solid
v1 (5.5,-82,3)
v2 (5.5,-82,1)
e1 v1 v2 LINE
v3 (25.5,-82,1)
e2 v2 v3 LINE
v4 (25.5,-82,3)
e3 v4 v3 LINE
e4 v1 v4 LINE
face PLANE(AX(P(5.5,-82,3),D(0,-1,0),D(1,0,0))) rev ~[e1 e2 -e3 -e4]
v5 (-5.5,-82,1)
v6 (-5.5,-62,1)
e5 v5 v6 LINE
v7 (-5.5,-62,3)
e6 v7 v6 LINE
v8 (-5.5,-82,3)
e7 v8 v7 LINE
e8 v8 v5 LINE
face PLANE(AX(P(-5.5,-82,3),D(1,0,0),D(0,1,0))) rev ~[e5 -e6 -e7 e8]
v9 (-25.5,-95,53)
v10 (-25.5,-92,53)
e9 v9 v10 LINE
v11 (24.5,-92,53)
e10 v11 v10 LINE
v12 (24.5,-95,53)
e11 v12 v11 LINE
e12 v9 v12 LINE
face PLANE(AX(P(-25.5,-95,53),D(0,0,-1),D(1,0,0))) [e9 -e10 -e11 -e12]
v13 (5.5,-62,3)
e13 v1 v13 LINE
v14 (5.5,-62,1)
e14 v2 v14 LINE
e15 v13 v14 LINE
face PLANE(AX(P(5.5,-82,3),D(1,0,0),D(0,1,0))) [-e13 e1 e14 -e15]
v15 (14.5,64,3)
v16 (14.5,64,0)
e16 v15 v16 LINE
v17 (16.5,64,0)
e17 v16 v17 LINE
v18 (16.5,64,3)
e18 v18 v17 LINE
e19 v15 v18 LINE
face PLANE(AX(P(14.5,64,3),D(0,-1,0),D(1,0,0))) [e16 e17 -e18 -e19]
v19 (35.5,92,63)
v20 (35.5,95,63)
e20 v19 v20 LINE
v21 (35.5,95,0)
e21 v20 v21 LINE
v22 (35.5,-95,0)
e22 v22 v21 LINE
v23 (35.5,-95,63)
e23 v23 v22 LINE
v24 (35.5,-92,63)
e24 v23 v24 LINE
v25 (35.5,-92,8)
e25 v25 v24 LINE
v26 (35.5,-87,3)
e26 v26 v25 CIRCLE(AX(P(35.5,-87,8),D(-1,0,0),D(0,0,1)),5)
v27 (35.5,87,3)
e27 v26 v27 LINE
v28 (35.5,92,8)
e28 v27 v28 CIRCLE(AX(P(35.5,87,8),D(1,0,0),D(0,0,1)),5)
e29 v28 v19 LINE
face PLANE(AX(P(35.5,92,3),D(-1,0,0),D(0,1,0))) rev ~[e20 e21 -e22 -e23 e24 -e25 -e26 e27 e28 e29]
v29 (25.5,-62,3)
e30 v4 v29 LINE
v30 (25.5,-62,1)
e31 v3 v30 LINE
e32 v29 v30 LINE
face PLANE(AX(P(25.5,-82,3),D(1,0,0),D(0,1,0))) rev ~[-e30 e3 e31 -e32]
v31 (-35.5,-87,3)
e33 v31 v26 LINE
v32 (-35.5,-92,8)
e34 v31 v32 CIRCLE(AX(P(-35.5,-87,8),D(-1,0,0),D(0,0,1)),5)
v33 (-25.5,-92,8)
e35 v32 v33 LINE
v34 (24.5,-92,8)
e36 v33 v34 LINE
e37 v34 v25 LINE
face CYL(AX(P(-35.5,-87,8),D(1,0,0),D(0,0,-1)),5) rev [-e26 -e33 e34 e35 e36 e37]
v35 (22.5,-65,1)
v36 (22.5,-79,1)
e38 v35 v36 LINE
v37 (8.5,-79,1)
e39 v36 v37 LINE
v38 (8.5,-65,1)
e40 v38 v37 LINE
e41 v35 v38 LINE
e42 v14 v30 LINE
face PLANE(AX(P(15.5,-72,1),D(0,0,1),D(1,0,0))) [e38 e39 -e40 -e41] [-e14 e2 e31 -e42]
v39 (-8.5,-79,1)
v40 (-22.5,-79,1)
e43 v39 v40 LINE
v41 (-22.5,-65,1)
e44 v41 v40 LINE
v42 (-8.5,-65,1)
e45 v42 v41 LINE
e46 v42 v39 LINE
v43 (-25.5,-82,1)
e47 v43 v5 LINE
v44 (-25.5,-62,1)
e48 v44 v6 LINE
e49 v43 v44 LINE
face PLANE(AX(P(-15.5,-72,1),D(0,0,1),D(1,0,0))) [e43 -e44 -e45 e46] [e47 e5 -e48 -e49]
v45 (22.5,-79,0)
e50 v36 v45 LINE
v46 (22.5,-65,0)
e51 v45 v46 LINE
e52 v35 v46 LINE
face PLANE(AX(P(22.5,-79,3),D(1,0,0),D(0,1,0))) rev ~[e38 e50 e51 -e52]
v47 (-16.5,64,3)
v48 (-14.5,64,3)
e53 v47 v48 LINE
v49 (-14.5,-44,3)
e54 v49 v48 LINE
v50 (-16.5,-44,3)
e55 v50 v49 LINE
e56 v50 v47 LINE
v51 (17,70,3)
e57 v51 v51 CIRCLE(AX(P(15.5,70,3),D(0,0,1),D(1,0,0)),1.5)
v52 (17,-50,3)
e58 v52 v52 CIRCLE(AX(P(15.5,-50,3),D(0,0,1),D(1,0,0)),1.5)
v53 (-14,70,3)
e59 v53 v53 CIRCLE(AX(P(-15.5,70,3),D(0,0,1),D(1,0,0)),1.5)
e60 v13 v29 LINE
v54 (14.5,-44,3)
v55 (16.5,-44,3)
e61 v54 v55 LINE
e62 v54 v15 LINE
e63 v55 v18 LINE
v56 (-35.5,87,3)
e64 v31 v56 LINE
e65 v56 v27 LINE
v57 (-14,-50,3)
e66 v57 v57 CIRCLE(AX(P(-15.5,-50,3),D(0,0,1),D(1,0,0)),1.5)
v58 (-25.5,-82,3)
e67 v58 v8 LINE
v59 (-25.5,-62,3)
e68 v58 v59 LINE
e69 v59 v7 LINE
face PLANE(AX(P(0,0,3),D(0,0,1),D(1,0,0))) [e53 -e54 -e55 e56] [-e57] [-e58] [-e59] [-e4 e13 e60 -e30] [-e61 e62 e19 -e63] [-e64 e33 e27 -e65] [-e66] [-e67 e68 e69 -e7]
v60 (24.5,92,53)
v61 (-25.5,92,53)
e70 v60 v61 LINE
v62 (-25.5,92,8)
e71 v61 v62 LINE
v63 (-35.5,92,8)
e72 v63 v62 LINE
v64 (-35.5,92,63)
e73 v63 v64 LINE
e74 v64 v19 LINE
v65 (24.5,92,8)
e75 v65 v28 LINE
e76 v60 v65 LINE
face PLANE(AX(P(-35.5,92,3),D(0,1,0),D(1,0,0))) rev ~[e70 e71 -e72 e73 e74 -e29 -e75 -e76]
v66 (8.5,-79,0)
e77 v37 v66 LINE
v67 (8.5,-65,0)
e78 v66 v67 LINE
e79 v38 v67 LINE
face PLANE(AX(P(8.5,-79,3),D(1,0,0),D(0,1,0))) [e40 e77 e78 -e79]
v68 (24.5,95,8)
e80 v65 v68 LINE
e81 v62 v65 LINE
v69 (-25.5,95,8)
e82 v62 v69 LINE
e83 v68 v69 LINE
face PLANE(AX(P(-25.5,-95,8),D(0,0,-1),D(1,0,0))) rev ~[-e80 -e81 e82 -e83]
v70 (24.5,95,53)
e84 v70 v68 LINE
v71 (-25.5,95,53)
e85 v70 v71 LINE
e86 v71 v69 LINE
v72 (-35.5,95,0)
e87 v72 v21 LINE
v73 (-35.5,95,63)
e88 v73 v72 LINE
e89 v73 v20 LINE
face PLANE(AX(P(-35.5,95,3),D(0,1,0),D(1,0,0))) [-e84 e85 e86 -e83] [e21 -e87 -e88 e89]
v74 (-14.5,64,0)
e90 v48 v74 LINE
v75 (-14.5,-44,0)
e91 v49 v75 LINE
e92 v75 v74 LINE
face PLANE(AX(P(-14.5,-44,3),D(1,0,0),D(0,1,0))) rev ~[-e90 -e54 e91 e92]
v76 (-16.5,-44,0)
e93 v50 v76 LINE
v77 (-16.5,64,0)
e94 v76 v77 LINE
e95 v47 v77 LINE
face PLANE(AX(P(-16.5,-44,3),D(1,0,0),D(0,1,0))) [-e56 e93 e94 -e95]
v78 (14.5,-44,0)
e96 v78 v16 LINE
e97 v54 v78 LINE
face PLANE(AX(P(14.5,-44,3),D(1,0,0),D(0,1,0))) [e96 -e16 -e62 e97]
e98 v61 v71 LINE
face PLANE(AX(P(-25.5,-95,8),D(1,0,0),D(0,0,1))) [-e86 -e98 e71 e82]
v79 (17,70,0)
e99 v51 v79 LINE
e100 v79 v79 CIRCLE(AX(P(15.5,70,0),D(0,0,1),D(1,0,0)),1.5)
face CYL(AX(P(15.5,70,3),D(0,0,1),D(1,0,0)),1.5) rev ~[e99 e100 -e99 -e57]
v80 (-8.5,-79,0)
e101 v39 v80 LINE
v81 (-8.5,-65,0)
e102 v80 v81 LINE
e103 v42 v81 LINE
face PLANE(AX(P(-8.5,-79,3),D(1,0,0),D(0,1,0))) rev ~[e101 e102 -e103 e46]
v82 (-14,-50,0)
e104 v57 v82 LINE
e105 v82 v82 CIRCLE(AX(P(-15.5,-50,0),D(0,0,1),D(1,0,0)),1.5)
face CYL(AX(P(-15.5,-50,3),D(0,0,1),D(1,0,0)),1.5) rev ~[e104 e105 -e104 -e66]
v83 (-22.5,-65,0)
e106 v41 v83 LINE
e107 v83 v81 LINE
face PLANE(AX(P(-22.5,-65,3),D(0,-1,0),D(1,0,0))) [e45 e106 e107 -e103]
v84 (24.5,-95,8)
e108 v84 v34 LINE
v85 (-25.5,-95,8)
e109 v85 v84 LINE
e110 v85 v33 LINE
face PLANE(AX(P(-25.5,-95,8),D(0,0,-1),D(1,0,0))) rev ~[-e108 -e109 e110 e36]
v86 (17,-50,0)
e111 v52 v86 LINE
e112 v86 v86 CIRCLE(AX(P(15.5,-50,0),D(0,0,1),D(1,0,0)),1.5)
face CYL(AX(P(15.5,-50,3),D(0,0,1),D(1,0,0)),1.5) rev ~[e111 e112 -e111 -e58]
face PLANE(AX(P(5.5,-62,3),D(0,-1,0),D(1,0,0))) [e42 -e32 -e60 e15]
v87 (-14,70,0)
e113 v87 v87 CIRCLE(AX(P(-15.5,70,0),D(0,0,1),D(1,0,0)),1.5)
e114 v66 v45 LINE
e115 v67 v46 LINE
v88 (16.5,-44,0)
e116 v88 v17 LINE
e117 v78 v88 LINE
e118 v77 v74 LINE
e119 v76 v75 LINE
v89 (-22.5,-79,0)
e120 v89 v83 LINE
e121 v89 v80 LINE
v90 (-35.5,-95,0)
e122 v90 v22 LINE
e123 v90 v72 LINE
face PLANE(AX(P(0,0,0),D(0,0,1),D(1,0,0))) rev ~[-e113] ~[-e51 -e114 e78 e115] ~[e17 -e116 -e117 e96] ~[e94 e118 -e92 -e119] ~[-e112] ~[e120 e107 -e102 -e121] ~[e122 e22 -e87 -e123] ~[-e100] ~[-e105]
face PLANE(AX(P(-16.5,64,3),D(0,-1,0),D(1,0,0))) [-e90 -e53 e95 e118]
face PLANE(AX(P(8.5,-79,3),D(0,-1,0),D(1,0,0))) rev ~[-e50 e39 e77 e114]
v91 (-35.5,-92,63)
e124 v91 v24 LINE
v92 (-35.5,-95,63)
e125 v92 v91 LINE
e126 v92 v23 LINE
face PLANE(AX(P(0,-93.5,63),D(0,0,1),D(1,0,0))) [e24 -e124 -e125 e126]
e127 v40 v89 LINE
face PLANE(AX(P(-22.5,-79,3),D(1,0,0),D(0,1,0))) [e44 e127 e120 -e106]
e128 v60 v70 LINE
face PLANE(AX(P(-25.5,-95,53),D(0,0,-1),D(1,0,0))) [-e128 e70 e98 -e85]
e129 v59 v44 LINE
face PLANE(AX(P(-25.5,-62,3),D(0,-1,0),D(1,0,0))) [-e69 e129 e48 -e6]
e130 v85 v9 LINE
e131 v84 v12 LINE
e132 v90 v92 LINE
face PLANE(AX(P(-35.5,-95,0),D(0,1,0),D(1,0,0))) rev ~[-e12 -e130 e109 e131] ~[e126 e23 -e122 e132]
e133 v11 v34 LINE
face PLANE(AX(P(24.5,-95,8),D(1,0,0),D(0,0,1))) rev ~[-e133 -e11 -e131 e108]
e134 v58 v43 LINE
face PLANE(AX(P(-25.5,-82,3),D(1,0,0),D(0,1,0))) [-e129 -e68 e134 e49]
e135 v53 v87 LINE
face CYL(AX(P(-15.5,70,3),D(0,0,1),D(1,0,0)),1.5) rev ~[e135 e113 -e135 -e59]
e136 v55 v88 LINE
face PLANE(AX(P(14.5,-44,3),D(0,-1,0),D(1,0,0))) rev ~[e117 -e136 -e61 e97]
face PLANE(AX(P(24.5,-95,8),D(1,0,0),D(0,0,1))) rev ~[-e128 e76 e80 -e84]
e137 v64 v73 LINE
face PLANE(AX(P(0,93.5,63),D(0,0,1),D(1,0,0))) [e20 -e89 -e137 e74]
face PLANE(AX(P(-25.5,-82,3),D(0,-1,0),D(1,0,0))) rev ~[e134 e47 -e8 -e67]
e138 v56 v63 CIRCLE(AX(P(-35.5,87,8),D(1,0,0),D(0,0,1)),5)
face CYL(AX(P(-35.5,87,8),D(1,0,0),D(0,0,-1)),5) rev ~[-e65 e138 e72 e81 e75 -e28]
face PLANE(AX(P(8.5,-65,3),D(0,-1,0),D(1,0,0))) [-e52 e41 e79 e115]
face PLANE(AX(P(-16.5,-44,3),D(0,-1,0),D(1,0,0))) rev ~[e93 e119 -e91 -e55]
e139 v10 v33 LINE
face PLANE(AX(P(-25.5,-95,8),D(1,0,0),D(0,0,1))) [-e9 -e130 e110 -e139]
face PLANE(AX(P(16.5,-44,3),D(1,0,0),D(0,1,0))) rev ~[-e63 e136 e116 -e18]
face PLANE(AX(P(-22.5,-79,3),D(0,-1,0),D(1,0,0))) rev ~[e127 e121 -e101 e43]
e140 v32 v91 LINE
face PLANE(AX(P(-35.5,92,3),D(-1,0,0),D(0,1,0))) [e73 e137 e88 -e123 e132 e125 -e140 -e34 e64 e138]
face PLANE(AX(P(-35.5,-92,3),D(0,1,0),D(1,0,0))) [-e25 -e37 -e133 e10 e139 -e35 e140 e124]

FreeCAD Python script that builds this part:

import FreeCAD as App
import Part
import Sketcher
from FreeCAD import Vector


def edges_at(feature, points):
    """Names of the edges that pass closest to the given points."""
    edges = feature.Shape.Edges
    near = lambda p: min(range(len(edges)), key=lambda i: edges[i].distToShape(Part.Vertex(*p))[0])
    return sorted({f"Edge{near(p) + 1}" for p in points})

doc = App.newDocument("Part")
body = doc.addObject("PartDesign::Body", "Body")

# Sketch on XY plane
sketch1 = body.newObject("Sketcher::SketchObject", "Sketch")
sketch1.AttachmentSupport = (doc.getObject("XY_Plane"), [""])
sketch1.MapMode = "FlatFace"
sketch1.addGeometry([
    Part.LineSegment(Vector(-36, 95, 0), Vector(-36, -95, 0)),
    Part.LineSegment(Vector(-36, -95, 0), Vector(36, -95, 0)),
    Part.LineSegment(Vector(36, -95, 0), Vector(36, 95, 0)),
    Part.LineSegment(Vector(36, 95, 0), Vector(-36, 95, 0)),
], False)
sketch1.addConstraint([
    Sketcher.Constraint("Coincident", 0, 2, 1, 1),
    Sketcher.Constraint("Coincident", 1, 2, 2, 1),
    Sketcher.Constraint("Coincident", 2, 2, 3, 1),
    Sketcher.Constraint("Coincident", 3, 2, 0, 1),
    Sketcher.Constraint("Vertical", 0),
    Sketcher.Constraint("Horizontal", 1),
    Sketcher.Constraint("Vertical", 2),
    Sketcher.Constraint("Horizontal", 3),
    Sketcher.Constraint("Symmetric", 0, 2, 2, 2, -1, 1),
    Sketcher.Constraint("DistanceX", 1, 1, 1, 2, 71.0),
    Sketcher.Constraint("DistanceY", 0, 2, 0, 1, 190.0),
])
pad1 = body.newObject("PartDesign::Pad", "Pad")
pad1.Profile = sketch1
pad1.Length = 3

# Sketch on XY plane
sketch2 = body.newObject("Sketcher::SketchObject", "Sketch001")
sketch2.AttachmentSupport = (doc.getObject("XY_Plane"), [""])
sketch2.MapMode = "FlatFace"
sketch2.AttachmentOffset = App.Placement(Vector(0, 0, 3), App.Rotation())
sketch2.addGeometry([
    Part.Circle(Vector(-15.5, 70, 0), Vector(0, 0, 1), 1.5),  # 0
    Part.Circle(Vector(-15.5, -50, 0), Vector(0, 0, 1), 1.5),  # 1
    Part.Circle(Vector(15.5, 70, 0), Vector(0, 0, 1), 1.5),  # 2
    Part.Circle(Vector(15.5, -50, 0), Vector(0, 0, 1), 1.5),  # 3
    Part.LineSegment(Vector(-22.5, -65, 0), Vector(-22.5, -79, 0)),  # 4
    Part.LineSegment(Vector(-22.5, -79, 0), Vector(-8.5, -79, 0)),  # 5
    Part.LineSegment(Vector(-8.5, -79, 0), Vector(-8.5, -65, 0)),  # 6
    Part.LineSegment(Vector(-8.5, -65, 0), Vector(-22.5, -65, 0)),  # 7
    Part.LineSegment(Vector(-16.5, 64, 0), Vector(-16.5, -44, 0)),  # 8
    Part.LineSegment(Vector(-16.5, -44, 0), Vector(-14.5, -44, 0)),  # 9
    Part.LineSegment(Vector(-14.5, -44, 0), Vector(-14.5, 64, 0)),  # 10
    Part.LineSegment(Vector(-14.5, 64, 0), Vector(-16.5, 64, 0)),  # 11
    Part.LineSegment(Vector(8.5, -65, 0), Vector(8.5, -79, 0)),  # 12
    Part.LineSegment(Vector(8.5, -79, 0), Vector(22.5, -79, 0)),  # 13
    Part.LineSegment(Vector(22.5, -79, 0), Vector(22.5, -65, 0)),  # 14
    Part.LineSegment(Vector(22.5, -65, 0), Vector(8.5, -65, 0)),  # 15
    Part.LineSegment(Vector(14.5, 64, 0), Vector(14.5, -44, 0)),  # 16
    Part.LineSegment(Vector(14.5, -44, 0), Vector(16.5, -44, 0)),  # 17
    Part.LineSegment(Vector(16.5, -44, 0), Vector(16.5, 64, 0)),  # 18
    Part.LineSegment(Vector(16.5, 64, 0), Vector(14.5, 64, 0)),  # 19
], False)
sketch2.addConstraint([
    Sketcher.Constraint("Coincident", 4, 2, 5, 1),
    Sketcher.Constraint("Coincident", 5, 2, 6, 1),
    Sketcher.Constraint("Coincident", 6, 2, 7, 1),
    Sketcher.Constraint("Coincident", 7, 2, 4, 1),
    Sketcher.Constraint("Coincident", 8, 2, 9, 1),
    Sketcher.Constraint("Coincident", 9, 2, 10, 1),
    Sketcher.Constraint("Coincident", 10, 2, 11, 1),
    Sketcher.Constraint("Coincident", 11, 2, 8, 1),
    Sketcher.Constraint("Coincident", 12, 2, 13, 1),
    Sketcher.Constraint("Coincident", 13, 2, 14, 1),
    Sketcher.Constraint("Coincident", 14, 2, 15, 1),
    Sketcher.Constraint("Coincident", 15, 2, 12, 1),
    Sketcher.Constraint("Coincident", 16, 2, 17, 1),
    Sketcher.Constraint("Coincident", 17, 2, 18, 1),
    Sketcher.Constraint("Coincident", 18, 2, 19, 1),
    Sketcher.Constraint("Coincident", 19, 2, 16, 1),
    Sketcher.Constraint("Vertical", 4),
    Sketcher.Constraint("Horizontal", 5),
    Sketcher.Constraint("Vertical", 6),
    Sketcher.Constraint("Horizontal", 7),
    Sketcher.Constraint("Vertical", 8),
    Sketcher.Constraint("Horizontal", 9),
    Sketcher.Constraint("Vertical", 10),
    Sketcher.Constraint("Horizontal", 11),
    Sketcher.Constraint("Vertical", 12),
    Sketcher.Constraint("Horizontal", 13),
    Sketcher.Constraint("Vertical", 14),
    Sketcher.Constraint("Horizontal", 15),
    Sketcher.Constraint("Vertical", 16),
    Sketcher.Constraint("Horizontal", 17),
    Sketcher.Constraint("Vertical", 18),
    Sketcher.Constraint("Horizontal", 19),
    Sketcher.Constraint("Equal", 0, 1),
    Sketcher.Constraint("Equal", 1, 2),
    Sketcher.Constraint("Equal", 2, 3),
    Sketcher.Constraint("Symmetric", 0, 3, 2, 3, -2),
    Sketcher.Constraint("Symmetric", 1, 3, 3, 3, -2),
    Sketcher.Constraint("Symmetric", 5, 2, 12, 2, -2),
    Sketcher.Constraint("Symmetric", 7, 2, 14, 2, -2),
    Sketcher.Constraint("Symmetric", 9, 2, 16, 2, -2),
    Sketcher.Constraint("Symmetric", 11, 2, 18, 2, -2),
    Sketcher.Constraint("Vertical", 0, 3, 1, 3),
    Sketcher.Constraint("Equal", 15, 4),
    Sketcher.Constraint("Diameter", 0, 3.0),
    Sketcher.Constraint("DistanceX", 5, 1, 5, 2, 14.0),
    Sketcher.Constraint("DistanceX", 9, 1, 9, 2, 2.0),
    Sketcher.Constraint("DistanceY", 8, 2, 8, 1, 108.0),
    Sketcher.Constraint("DistanceY", -1, 1, 0, 3, 70.0),
    Sketcher.Constraint("DistanceY", 1, 3, -1, 1, 50.0),
    Sketcher.Constraint("DistanceY", 4, 2, -1, 1, 79.0),
    Sketcher.Constraint("DistanceY", 8, 2, -1, 1, 44.0),
    Sketcher.Constraint("DistanceX", 0, 3, 2, 3, 31.0),
    Sketcher.Constraint("DistanceX", 4, 2, 1, 3, 7.0),
    Sketcher.Constraint("DistanceX", 8, 2, 1, 3, 1.0),
])
pocket1 = body.newObject("PartDesign::Pocket", "Pocket")
pocket1.Profile = sketch2
pocket1.Length = 3

# Sketch on XY plane
sketch3 = body.newObject("Sketcher::SketchObject", "Sketch002")
sketch3.AttachmentSupport = (doc.getObject("XY_Plane"), [""])
sketch3.MapMode = "FlatFace"
sketch3.AttachmentOffset = App.Placement(Vector(0, 0, 3), App.Rotation())
sketch3.addGeometry([
    Part.LineSegment(Vector(-35.5, 95, 0), Vector(-35.5, 92, 0)),  # 0
    Part.LineSegment(Vector(-35.5, 92, 0), Vector(35.5, 92, 0)),  # 1
    Part.LineSegment(Vector(35.5, 92, 0), Vector(35.5, 95, 0)),  # 2
    Part.LineSegment(Vector(35.5, 95, 0), Vector(-35.5, 95, 0)),  # 3
    Part.LineSegment(Vector(-35.5, -92, 0), Vector(-35.5, -95, 0)),  # 4
    Part.LineSegment(Vector(-35.5, -95, 0), Vector(35.5, -95, 0)),  # 5
    Part.LineSegment(Vector(35.5, -95, 0), Vector(35.5, -92, 0)),  # 6
    Part.LineSegment(Vector(35.5, -92, 0), Vector(-35.5, -92, 0)),  # 7
], False)
sketch3.addConstraint([
    Sketcher.Constraint("Coincident", 0, 2, 1, 1),
    Sketcher.Constraint("Coincident", 1, 2, 2, 1),
    Sketcher.Constraint("Coincident", 2, 2, 3, 1),
    Sketcher.Constraint("Coincident", 3, 2, 0, 1),
    Sketcher.Constraint("Coincident", 4, 2, 5, 1),
    Sketcher.Constraint("Coincident", 5, 2, 6, 1),
    Sketcher.Constraint("Coincident", 6, 2, 7, 1),
    Sketcher.Constraint("Coincident", 7, 2, 4, 1),
    Sketcher.Constraint("Vertical", 0),
    Sketcher.Constraint("Horizontal", 1),
    Sketcher.Constraint("Vertical", 2),
    Sketcher.Constraint("Horizontal", 3),
    Sketcher.Constraint("Vertical", 4),
    Sketcher.Constraint("Horizontal", 5),
    Sketcher.Constraint("Vertical", 6),
    Sketcher.Constraint("Horizontal", 7),
    Sketcher.Constraint("Symmetric", 2, 2, 4, 2, -1, 1),
    Sketcher.Constraint("Symmetric", 0, 2, 6, 2, -1, 1),
    Sketcher.Constraint("Vertical", 3, 2, 4, 2),
    Sketcher.Constraint("DistanceX", 1, 1, 1, 2, 71.0),
    Sketcher.Constraint("DistanceY", 0, 2, 0, 1, 3.0),
    Sketcher.Constraint("DistanceY", -1, 1, 0, 2, 92.0),
])
pad2 = body.newObject("PartDesign::Pad", "Pad001")
pad2.Profile = sketch3
pad2.Length = 60
doc.recompute()

fillet = body.newObject("PartDesign::Fillet", "Fillet")
fillet.Base = (pad2, edges_at(pad2, [(0, 92, 3), (0, -92, 3)]))
fillet.Radius = 5

# Sketch on XY plane
sketch4 = body.newObject("Sketcher::SketchObject", "Sketch003")
sketch4.AttachmentSupport = (doc.getObject("XY_Plane"), [""])
sketch4.MapMode = "FlatFace"
sketch4.AttachmentOffset = App.Placement(Vector(0, 0, 3), App.Rotation())
sketch4.addGeometry([
    Part.LineSegment(Vector(-26, -62, 0), Vector(-26, -82, 0)),  # 0
    Part.LineSegment(Vector(-26, -82, 0), Vector(-6, -82, 0)),  # 1
    Part.LineSegment(Vector(-6, -82, 0), Vector(-6, -62, 0)),  # 2
    Part.LineSegment(Vector(-6, -62, 0), Vector(-26, -62, 0)),  # 3
    Part.LineSegment(Vector(6, -62, 0), Vector(6, -82, 0)),  # 4
    Part.LineSegment(Vector(6, -82, 0), Vector(26, -82, 0)),  # 5
    Part.LineSegment(Vector(26, -82, 0), Vector(26, -62, 0)),  # 6
    Part.LineSegment(Vector(26, -62, 0), Vector(6, -62, 0)),  # 7
], False)
sketch4.addConstraint([
    Sketcher.Constraint("Coincident", 0, 2, 1, 1),
    Sketcher.Constraint("Coincident", 1, 2, 2, 1),
    Sketcher.Constraint("Coincident", 2, 2, 3, 1),
    Sketcher.Constraint("Coincident", 3, 2, 0, 1),
    Sketcher.Constraint("Coincident", 4, 2, 5, 1),
    Sketcher.Constraint("Coincident", 5, 2, 6, 1),
    Sketcher.Constraint("Coincident", 6, 2, 7, 1),
    Sketcher.Constraint("Coincident", 7, 2, 4, 1),
    Sketcher.Constraint("Vertical", 0),
    Sketcher.Constraint("Horizontal", 1),
    Sketcher.Constraint("Vertical", 2),
    Sketcher.Constraint("Horizontal", 3),
    Sketcher.Constraint("Vertical", 4),
    Sketcher.Constraint("Horizontal", 5),
    Sketcher.Constraint("Vertical", 6),
    Sketcher.Constraint("Horizontal", 7),
    Sketcher.Constraint("Symmetric", 1, 2, 4, 2, -2),
    Sketcher.Constraint("Symmetric", 3, 2, 6, 2, -2),
    Sketcher.Constraint("Equal", 7, 0),
    Sketcher.Constraint("DistanceX", 1, 1, 1, 2, 20.0),
    Sketcher.Constraint("DistanceY", 0, 2, -1, 1, 82.0),
    Sketcher.Constraint("DistanceX", 1, 2, 4, 2, 11.0),
])
pocket2 = body.newObject("PartDesign::Pocket", "Pocket001")
pocket2.Profile = sketch4
pocket2.Length = 2

# Sketch on XZ plane
sketch5 = body.newObject("Sketcher::SketchObject", "Sketch004")
sketch5.AttachmentSupport = (doc.getObject("XZ_Plane"), [""])
sketch5.MapMode = "FlatFace"
sketch5.AttachmentOffset = App.Placement(Vector(0, 0, 95), App.Rotation())
sketch5.addGeometry([
    Part.LineSegment(Vector(-26, 53, 0), Vector(-26, 8, 0)),
    Part.LineSegment(Vector(-26, 8, 0), Vector(24, 8, 0)),
    Part.LineSegment(Vector(24, 8, 0), Vector(24, 53, 0)),
    Part.LineSegment(Vector(24, 53, 0), Vector(-26, 53, 0)),
], False)
sketch5.addConstraint([
    Sketcher.Constraint("Coincident", 0, 2, 1, 1),
    Sketcher.Constraint("Coincident", 1, 2, 2, 1),
    Sketcher.Constraint("Coincident", 2, 2, 3, 1),
    Sketcher.Constraint("Coincident", 3, 2, 0, 1),
    Sketcher.Constraint("Vertical", 0),
    Sketcher.Constraint("Horizontal", 1),
    Sketcher.Constraint("Vertical", 2),
    Sketcher.Constraint("Horizontal", 3),
    Sketcher.Constraint("DistanceX", 1, 1, 1, 2, 50.0),
    Sketcher.Constraint("DistanceY", 0, 2, 0, 1, 45.0),
    Sketcher.Constraint("DistanceY", -1, 1, 0, 2, 8.0),
    Sketcher.Constraint("DistanceX", 0, 2, -1, 1, 25.5),
])
pocket3 = body.newObject("PartDesign::Pocket", "Pocket002")
pocket3.Profile = sketch5
pocket3.Length = 200

doc.recompute()
